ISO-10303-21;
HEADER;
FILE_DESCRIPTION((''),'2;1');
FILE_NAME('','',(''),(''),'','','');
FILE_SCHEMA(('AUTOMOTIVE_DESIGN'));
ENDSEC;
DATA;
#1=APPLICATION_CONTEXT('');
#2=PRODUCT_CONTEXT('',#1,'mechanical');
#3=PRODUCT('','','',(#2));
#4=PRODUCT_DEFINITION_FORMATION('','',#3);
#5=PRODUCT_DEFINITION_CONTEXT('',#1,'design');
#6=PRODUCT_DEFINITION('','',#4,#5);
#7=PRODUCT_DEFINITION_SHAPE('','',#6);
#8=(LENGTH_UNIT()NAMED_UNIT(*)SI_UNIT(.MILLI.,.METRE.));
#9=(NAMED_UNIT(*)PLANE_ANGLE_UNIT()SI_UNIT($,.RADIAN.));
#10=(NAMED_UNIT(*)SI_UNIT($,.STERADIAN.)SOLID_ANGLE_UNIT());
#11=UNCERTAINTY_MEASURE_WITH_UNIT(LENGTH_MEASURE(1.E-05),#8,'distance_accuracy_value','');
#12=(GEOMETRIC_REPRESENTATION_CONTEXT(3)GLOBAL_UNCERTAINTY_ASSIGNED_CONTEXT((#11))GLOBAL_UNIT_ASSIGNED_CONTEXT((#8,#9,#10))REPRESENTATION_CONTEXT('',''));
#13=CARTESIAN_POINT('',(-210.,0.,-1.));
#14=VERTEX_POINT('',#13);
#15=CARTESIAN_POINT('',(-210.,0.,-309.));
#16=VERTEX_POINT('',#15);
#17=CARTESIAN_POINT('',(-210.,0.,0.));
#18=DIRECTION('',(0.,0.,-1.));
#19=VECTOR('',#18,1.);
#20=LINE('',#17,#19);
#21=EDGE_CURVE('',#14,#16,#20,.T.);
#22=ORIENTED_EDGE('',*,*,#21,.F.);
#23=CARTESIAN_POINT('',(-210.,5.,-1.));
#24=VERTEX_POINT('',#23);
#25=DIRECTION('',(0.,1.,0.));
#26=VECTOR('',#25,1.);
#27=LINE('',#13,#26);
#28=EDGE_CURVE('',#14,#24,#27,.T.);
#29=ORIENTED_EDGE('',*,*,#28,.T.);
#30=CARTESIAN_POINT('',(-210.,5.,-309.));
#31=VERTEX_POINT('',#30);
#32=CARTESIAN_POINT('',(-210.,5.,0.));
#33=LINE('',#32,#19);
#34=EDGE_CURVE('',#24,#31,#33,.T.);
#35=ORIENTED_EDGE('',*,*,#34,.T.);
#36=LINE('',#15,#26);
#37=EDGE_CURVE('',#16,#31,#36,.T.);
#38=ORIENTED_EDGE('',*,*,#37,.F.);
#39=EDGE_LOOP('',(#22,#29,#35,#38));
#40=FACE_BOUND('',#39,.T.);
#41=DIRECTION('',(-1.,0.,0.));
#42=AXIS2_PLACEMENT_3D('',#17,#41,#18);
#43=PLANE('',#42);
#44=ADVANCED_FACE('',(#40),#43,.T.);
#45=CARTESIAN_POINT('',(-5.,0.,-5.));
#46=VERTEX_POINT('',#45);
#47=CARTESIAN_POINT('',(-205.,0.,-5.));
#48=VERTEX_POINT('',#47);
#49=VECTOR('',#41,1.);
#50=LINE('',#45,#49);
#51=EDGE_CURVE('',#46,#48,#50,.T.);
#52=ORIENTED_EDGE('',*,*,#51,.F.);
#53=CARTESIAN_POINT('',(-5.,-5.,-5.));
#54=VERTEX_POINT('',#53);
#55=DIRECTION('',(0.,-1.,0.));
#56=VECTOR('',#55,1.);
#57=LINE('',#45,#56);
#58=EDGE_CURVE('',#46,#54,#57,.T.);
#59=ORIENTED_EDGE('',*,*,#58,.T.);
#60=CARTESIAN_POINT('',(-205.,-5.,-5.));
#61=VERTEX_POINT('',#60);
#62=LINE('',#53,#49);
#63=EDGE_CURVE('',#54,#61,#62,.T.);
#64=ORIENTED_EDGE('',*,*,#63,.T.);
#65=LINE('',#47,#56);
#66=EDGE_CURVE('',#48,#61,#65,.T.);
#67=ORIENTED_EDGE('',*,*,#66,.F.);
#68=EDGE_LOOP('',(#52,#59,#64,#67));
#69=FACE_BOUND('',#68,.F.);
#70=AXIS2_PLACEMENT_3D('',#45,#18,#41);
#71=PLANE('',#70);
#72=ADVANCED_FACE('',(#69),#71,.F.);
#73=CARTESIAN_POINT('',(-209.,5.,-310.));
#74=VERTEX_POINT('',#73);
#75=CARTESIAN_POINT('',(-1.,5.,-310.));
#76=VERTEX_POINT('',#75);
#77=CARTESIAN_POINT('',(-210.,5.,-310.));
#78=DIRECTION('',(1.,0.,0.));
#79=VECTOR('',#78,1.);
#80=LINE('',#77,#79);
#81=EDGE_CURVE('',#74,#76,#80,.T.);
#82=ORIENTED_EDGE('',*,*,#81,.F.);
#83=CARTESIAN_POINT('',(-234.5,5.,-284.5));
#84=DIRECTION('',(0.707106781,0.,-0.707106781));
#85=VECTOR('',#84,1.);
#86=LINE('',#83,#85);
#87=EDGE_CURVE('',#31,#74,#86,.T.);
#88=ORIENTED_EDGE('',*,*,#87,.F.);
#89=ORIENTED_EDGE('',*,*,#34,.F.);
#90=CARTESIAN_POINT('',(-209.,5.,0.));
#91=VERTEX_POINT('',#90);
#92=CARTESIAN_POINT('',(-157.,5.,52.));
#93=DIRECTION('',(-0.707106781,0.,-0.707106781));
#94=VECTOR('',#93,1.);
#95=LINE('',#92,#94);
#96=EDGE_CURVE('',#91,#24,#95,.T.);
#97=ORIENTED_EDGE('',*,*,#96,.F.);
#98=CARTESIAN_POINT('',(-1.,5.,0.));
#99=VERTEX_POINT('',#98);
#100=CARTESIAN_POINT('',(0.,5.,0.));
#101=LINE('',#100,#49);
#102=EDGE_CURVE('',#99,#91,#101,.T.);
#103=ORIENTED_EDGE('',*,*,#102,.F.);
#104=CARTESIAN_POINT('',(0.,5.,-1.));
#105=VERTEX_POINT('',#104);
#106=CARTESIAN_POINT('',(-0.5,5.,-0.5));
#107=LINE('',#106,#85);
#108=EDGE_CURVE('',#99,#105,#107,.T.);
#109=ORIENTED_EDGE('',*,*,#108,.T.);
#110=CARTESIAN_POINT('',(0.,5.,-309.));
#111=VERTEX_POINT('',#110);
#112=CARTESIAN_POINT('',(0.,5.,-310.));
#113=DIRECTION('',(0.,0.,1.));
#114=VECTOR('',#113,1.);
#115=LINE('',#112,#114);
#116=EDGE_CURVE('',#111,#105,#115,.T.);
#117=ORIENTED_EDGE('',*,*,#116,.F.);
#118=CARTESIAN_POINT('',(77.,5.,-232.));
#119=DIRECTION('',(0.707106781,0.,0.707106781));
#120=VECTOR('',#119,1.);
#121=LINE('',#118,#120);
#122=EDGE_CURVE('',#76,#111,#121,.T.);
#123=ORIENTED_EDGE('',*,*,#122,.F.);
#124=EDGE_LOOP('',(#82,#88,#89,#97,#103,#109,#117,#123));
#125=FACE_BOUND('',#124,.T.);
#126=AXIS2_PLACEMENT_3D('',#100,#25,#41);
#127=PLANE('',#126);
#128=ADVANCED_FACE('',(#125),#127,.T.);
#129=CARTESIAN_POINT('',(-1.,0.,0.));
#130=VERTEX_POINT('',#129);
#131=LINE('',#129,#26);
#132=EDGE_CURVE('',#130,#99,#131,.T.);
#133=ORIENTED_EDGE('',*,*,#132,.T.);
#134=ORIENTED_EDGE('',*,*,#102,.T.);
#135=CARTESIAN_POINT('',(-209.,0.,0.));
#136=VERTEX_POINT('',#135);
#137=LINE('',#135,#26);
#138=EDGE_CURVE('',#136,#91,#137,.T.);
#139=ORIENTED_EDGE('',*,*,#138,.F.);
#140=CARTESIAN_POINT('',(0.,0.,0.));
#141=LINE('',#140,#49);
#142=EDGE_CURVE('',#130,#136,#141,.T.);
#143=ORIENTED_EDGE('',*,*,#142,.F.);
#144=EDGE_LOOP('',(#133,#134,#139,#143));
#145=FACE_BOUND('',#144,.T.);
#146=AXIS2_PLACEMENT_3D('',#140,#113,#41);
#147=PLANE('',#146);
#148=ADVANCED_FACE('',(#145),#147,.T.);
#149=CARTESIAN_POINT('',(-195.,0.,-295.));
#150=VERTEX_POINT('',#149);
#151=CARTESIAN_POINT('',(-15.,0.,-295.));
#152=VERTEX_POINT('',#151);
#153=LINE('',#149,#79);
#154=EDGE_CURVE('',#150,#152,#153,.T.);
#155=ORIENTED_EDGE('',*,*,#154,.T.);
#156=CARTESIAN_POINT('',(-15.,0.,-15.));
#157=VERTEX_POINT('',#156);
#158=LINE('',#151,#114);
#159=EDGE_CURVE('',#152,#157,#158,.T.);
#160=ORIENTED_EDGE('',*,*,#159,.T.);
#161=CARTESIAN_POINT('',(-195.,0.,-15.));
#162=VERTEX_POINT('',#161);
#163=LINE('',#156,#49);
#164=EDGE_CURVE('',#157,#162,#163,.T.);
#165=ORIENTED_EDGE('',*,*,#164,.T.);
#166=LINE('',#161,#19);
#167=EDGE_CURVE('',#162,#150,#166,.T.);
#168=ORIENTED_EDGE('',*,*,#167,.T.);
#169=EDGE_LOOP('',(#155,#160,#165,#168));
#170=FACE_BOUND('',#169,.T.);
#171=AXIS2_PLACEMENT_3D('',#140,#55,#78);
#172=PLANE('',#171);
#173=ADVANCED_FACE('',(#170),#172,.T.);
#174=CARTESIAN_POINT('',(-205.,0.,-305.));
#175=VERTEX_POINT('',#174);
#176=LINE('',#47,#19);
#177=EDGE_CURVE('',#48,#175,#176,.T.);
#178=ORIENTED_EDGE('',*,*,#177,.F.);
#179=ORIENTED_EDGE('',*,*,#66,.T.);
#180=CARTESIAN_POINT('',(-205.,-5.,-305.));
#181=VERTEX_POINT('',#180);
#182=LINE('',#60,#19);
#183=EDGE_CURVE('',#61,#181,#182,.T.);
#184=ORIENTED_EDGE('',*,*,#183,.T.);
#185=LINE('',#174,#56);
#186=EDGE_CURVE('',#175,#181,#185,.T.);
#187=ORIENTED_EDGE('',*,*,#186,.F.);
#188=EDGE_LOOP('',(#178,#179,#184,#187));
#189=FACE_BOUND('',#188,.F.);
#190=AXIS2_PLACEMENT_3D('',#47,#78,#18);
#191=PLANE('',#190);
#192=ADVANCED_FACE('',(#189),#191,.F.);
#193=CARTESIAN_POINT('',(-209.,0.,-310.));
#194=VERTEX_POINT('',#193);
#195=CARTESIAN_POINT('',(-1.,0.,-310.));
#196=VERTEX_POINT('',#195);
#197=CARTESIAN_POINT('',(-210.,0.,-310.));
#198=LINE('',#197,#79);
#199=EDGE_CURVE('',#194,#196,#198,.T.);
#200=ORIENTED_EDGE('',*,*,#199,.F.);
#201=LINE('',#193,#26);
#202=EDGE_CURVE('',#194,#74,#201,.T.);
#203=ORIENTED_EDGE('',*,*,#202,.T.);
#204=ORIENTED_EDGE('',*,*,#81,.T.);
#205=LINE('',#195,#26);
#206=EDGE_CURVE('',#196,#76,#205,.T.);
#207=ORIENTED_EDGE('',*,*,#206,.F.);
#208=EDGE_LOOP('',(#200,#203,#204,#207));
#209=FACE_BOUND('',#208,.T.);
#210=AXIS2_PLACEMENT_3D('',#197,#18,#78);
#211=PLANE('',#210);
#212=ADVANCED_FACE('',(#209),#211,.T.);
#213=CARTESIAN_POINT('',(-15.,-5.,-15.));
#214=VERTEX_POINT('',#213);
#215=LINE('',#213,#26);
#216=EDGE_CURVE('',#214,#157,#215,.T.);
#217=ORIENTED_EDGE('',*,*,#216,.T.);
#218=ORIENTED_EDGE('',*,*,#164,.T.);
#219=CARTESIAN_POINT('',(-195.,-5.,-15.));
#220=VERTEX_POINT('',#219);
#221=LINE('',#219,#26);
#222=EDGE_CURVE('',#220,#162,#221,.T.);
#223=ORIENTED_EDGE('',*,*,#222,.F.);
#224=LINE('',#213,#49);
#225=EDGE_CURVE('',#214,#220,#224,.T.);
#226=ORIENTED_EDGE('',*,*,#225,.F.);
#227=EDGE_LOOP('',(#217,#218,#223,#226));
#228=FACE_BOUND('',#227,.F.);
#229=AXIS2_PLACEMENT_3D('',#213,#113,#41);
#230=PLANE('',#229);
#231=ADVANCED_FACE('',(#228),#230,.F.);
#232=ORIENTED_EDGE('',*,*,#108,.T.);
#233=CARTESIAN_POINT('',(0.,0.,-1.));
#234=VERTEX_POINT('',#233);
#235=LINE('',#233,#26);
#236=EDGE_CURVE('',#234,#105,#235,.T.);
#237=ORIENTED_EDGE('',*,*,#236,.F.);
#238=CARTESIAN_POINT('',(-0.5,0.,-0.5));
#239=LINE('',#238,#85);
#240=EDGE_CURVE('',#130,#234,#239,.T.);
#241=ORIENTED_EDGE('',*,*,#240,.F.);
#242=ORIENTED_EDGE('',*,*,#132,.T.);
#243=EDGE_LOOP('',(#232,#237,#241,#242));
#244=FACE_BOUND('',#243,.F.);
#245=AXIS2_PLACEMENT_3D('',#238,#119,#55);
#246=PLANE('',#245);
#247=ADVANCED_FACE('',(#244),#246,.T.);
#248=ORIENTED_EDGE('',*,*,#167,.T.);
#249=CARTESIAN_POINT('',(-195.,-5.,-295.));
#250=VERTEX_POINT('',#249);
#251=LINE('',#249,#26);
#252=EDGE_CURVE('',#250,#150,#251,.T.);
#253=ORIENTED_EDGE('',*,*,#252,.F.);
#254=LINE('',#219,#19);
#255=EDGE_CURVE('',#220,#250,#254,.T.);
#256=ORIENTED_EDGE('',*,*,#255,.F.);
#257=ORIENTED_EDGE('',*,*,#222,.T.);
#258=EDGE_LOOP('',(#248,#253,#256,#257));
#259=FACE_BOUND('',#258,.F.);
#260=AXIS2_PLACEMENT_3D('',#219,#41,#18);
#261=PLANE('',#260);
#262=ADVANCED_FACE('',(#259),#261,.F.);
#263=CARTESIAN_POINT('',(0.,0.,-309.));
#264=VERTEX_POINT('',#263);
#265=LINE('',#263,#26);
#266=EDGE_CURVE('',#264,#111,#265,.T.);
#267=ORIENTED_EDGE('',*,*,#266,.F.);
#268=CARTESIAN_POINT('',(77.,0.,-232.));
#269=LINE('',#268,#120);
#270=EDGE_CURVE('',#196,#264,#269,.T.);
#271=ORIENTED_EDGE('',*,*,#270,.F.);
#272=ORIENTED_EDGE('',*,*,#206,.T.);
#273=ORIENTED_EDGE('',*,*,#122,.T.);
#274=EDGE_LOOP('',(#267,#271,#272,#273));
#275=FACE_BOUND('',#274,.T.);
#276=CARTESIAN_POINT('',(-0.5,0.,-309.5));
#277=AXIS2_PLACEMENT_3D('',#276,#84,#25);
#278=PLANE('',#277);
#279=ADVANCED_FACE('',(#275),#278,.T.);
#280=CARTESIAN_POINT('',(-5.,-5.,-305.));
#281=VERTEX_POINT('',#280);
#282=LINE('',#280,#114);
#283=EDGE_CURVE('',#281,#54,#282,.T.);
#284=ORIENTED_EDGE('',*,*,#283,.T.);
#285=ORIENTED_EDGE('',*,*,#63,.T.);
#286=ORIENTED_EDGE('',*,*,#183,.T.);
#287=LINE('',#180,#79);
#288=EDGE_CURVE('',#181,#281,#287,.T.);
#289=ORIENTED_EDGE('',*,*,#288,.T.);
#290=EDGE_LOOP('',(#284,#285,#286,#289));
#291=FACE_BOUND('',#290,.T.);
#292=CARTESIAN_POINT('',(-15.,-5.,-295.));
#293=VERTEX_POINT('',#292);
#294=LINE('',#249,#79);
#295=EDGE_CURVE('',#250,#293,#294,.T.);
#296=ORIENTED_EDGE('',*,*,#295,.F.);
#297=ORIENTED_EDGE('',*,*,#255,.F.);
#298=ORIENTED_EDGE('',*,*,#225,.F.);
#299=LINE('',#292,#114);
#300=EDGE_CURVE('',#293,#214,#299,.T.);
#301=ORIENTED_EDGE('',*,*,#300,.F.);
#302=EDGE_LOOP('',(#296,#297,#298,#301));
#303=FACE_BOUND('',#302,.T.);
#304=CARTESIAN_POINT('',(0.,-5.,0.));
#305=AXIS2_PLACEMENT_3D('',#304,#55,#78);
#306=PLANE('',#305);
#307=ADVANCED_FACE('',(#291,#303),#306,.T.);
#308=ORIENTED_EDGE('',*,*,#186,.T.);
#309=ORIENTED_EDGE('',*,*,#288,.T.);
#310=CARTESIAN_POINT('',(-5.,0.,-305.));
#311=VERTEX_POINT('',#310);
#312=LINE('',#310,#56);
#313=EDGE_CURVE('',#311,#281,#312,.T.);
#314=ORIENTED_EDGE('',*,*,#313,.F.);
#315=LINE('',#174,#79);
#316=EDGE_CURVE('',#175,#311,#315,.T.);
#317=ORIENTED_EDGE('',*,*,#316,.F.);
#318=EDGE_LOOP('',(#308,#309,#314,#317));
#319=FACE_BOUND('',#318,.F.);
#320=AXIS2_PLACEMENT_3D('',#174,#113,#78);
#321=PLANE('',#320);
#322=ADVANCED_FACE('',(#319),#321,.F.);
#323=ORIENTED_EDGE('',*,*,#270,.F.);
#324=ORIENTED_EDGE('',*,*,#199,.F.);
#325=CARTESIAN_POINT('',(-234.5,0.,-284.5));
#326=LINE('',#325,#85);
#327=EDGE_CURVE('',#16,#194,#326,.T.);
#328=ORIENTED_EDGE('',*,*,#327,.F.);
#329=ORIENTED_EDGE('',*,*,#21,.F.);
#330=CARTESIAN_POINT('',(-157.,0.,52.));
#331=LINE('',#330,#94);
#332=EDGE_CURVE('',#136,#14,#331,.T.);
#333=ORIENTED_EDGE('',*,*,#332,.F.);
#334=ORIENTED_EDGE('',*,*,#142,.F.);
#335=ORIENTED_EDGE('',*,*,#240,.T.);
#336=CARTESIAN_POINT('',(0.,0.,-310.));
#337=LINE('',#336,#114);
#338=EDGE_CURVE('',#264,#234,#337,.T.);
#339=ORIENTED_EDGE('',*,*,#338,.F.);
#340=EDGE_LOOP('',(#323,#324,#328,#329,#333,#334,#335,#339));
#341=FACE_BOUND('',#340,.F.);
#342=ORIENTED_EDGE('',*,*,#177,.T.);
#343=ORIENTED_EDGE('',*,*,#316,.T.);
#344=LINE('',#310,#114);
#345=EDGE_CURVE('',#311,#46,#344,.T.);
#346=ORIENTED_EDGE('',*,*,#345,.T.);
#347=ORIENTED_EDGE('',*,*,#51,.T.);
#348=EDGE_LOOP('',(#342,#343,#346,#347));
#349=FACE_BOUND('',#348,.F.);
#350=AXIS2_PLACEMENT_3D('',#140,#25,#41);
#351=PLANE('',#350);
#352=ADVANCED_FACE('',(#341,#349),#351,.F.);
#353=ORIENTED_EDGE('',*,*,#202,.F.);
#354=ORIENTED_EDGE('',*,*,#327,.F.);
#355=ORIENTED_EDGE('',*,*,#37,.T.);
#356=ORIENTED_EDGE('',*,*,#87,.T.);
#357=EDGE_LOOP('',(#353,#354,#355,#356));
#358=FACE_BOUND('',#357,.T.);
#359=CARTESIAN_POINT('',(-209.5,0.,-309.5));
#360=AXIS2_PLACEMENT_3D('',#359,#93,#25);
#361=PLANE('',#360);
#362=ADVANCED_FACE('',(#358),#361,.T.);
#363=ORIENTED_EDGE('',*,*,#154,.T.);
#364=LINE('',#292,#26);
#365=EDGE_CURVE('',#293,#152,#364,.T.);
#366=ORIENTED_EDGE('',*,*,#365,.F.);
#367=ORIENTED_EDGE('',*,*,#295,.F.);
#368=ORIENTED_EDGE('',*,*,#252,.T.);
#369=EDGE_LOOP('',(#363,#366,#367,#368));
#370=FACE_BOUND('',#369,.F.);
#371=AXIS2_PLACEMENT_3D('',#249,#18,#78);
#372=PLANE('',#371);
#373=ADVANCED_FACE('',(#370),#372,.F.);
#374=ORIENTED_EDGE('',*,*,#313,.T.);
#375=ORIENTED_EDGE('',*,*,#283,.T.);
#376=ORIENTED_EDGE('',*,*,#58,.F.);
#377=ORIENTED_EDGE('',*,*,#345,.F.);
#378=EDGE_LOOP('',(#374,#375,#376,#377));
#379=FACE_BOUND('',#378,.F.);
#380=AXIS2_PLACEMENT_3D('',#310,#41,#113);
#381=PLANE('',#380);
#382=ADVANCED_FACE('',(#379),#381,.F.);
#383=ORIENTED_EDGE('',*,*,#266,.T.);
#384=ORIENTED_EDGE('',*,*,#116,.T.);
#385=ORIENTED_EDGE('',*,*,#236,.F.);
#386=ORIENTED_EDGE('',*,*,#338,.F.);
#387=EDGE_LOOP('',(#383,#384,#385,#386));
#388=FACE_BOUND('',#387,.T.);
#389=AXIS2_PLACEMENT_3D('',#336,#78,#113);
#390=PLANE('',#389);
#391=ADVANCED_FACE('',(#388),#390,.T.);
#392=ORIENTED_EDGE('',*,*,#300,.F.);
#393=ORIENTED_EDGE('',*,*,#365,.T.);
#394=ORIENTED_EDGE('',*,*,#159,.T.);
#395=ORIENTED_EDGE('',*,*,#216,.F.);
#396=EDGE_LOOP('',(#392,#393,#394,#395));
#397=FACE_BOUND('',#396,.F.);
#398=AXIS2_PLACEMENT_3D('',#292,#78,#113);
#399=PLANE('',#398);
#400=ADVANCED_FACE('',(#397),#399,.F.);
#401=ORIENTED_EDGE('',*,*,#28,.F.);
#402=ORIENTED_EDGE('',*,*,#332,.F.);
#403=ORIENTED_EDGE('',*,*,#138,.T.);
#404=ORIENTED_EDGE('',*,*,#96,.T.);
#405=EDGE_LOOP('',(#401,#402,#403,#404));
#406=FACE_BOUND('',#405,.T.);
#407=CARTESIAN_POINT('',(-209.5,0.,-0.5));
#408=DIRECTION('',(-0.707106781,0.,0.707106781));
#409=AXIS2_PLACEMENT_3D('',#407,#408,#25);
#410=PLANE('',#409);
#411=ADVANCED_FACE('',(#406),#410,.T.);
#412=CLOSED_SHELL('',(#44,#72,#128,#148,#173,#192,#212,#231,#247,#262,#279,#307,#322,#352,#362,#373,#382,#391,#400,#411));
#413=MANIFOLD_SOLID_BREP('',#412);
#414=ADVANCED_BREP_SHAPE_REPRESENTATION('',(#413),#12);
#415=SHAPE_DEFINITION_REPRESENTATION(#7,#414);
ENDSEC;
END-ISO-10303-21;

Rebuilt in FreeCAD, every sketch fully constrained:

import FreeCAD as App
import Part
import Sketcher
from FreeCAD import Vector
Q = App.Units.Quantity


def edges_at(feature, points):
    """Names of the edges that pass closest to the given points."""
    edges = feature.Shape.Edges
    near = lambda p: min(range(len(edges)), key=lambda i: edges[i].distToShape(Part.Vertex(*p))[0])
    return sorted({f"Edge{near(p) + 1}" for p in points})

doc = App.newDocument("Part")
body = doc.addObject("PartDesign::Body", "Body")

sketch1 = body.newObject("Sketcher::SketchObject", "Sketch")
sketch1.AttachmentSupport = (doc.getObject("XZ_Plane"), [""])
sketch1.MapMode = "FlatFace"
sketch1.addGeometry([
    Part.LineSegment(Vector(-210, 0, 0), Vector(0, 0, 0)),
    Part.LineSegment(Vector(0, 0, 0), Vector(0, -310, 0)),
    Part.LineSegment(Vector(0, -310, 0), Vector(-210, -310, 0)),
    Part.LineSegment(Vector(-210, -310, 0), Vector(-210, 0, 0)),
], False)
sketch1.addConstraint([
    Sketcher.Constraint("Coincident", 0, 2, 1, 1),
    Sketcher.Constraint("Coincident", 1, 2, 2, 1),
    Sketcher.Constraint("Coincident", 2, 2, 3, 1),
    Sketcher.Constraint("Coincident", 3, 2, 0, 1),
    Sketcher.Constraint("Horizontal", 0),
    Sketcher.Constraint("Vertical", 1),
    Sketcher.Constraint("Horizontal", 2),
    Sketcher.Constraint("Vertical", 3),
    Sketcher.Constraint("Coincident", 0, 2, -1, 1),
    Sketcher.Constraint("DistanceX", 0, 1, 0, 2, Q("210 mm")),
    Sketcher.Constraint("DistanceY", 1, 2, 1, 1, Q("310 mm")),
])
pad1 = body.newObject("PartDesign::Pad", "Pad")
pad1.Profile = sketch1
pad1.Length = 5
pad1.Reversed = True
doc.recompute()

chamfer = body.newObject("PartDesign::Chamfer", "Chamfer")
chamfer.Base = (pad1, edges_at(pad1, [
    (0, 2.5, -310),
    (0, 2.5, 0),
    (-210, 2.5, -310),
    (-210, 2.5, 0),
]))
chamfer.Size = 1

sketch2 = body.newObject("Sketcher::SketchObject", "Sketch001")
sketch2.AttachmentSupport = (doc.getObject("XZ_Plane"), [""])
sketch2.MapMode = "FlatFace"
sketch2.addGeometry([
    Part.LineSegment(Vector(-205, -5, 0), Vector(-205, -305, 0)),
    Part.LineSegment(Vector(-205, -305, 0), Vector(-5, -305, 0)),
    Part.LineSegment(Vector(-5, -305, 0), Vector(-5, -5, 0)),
    Part.LineSegment(Vector(-5, -5, 0), Vector(-205, -5, 0)),
], False)
sketch2.addConstraint([
    Sketcher.Constraint("Coincident", 0, 2, 1, 1),
    Sketcher.Constraint("Coincident", 1, 2, 2, 1),
    Sketcher.Constraint("Coincident", 2, 2, 3, 1),
    Sketcher.Constraint("Coincident", 3, 2, 0, 1),
    Sketcher.Constraint("Vertical", 0),
    Sketcher.Constraint("Horizontal", 1),
    Sketcher.Constraint("Vertical", 2),
    Sketcher.Constraint("Horizontal", 3),
    Sketcher.Constraint("DistanceX", 1, 1, 1, 2, Q("200 mm")),
    Sketcher.Constraint("DistanceY", 0, 2, 0, 1, Q("300 mm")),
    Sketcher.Constraint("DistanceX", 1, 2, -1, 1, Q("5 mm")),
    Sketcher.Constraint("DistanceY", 2, 2, -1, 1, Q("5 mm")),
])
pad2 = body.newObject("PartDesign::Pad", "Pad001")
pad2.Profile = sketch2
pad2.Length = 5

sketch3 = body.newObject("Sketcher::SketchObject", "Sketch002")
sketch3.AttachmentSupport = (doc.getObject("XZ_Plane"), [""])
sketch3.MapMode = "FlatFace"
sketch3.AttachmentOffset = App.Placement(Vector(0, 0, 5), App.Rotation())
sketch3.addGeometry([
    Part.LineSegment(Vector(-195, -15, 0), Vector(-195, -295, 0)),
    Part.LineSegment(Vector(-195, -295, 0), Vector(-15, -295, 0)),
    Part.LineSegment(Vector(-15, -295, 0), Vector(-15, -15, 0)),
    Part.LineSegment(Vector(-15, -15, 0), Vector(-195, -15, 0)),
], False)
sketch3.addConstraint([
    Sketcher.Constraint("Coincident", 0, 2, 1, 1),
    Sketcher.Constraint("Coincident", 1, 2, 2, 1),
    Sketcher.Constraint("Coincident", 2, 2, 3, 1),
    Sketcher.Constraint("Coincident", 3, 2, 0, 1),
    Sketcher.Constraint("Vertical", 0),
    Sketcher.Constraint("Horizontal", 1),
    Sketcher.Constraint("Vertical", 2),
    Sketcher.Constraint("Horizontal", 3),
    Sketcher.Constraint("DistanceX", 1, 1, 1, 2, Q("180 mm")),
    Sketcher.Constraint("DistanceY", 0, 2, 0, 1, Q("280 mm")),
    Sketcher.Constraint("DistanceX", 0, 2, -1, 1, Q("195 mm")),
    Sketcher.Constraint("DistanceY", 0, 2, -1, 1, Q("295 mm")),
])
pocket1 = body.newObject("PartDesign::Pocket", "Pocket")
pocket1.Profile = sketch3
pocket1.Length = 5

doc.recompute()
